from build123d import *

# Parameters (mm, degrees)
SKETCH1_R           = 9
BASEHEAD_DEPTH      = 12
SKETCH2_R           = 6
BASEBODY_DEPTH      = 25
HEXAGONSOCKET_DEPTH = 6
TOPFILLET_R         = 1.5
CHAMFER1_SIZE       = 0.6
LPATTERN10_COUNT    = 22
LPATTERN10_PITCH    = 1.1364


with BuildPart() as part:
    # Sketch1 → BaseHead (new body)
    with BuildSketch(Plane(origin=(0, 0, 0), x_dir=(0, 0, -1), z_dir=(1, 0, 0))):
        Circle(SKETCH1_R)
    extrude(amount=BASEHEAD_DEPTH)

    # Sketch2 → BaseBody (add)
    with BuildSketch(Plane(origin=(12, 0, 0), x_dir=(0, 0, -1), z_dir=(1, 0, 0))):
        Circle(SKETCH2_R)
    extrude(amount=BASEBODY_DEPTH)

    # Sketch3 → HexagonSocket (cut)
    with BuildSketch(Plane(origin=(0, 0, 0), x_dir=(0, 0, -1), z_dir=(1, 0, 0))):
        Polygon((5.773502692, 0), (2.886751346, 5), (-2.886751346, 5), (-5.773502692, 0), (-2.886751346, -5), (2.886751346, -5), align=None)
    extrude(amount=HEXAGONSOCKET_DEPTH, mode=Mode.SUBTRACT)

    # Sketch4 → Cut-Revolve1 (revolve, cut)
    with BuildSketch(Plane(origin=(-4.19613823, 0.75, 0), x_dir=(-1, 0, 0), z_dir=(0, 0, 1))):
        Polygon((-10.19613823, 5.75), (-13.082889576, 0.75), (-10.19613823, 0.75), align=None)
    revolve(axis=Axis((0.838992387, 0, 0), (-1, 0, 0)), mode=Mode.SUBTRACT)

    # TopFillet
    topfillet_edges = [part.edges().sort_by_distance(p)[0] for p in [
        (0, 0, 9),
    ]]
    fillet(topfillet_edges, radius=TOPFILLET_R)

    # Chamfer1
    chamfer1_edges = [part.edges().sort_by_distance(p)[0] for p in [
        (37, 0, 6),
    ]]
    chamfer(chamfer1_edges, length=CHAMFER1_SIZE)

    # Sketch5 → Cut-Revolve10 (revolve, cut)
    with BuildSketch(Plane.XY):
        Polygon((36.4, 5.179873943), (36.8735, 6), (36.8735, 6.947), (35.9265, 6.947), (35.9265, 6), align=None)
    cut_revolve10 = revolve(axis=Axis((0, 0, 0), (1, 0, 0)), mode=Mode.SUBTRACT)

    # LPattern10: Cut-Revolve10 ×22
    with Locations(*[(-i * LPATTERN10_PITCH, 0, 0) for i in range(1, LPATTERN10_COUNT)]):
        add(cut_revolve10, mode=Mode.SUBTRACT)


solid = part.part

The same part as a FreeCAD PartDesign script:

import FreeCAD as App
import Part
import Sketcher
from FreeCAD import Vector
Q = App.Units.Quantity


def edges_at(feature, points):
    """Names of the edges that pass closest to the given points."""
    edges = feature.Shape.Edges
    near = lambda p: min(range(len(edges)), key=lambda i: edges[i].distToShape(Part.Vertex(*p))[0])
    return sorted({f"Edge{near(p) + 1}" for p in points})

doc = App.newDocument("Part")
body = doc.addObject("PartDesign::Body", "Body")

# Sketch on YZ plane
sketch1 = doc.addObject("Sketcher::SketchObject", "Sketch")
body.addObject(sketch1)
sketch1.AttachmentSupport = (doc.YZ_Plane, [""])
sketch1.MapMode = "FlatFace"
sketch1.addGeometry(Part.Circle(Vector(0, 0, 0), Vector(0, 0, 1), 9), False)
sketch1.addConstraint([
    Sketcher.Constraint("Coincident", 0, 3, -1, 1),
    Sketcher.Constraint("Diameter", 0, Q("18 mm")),
])
pad1 = doc.addObject("PartDesign::Pad", "Pad")
body.addObject(pad1)
pad1.Profile = sketch1
pad1.Length = 12

# Sketch on YZ plane
sketch2 = doc.addObject("Sketcher::SketchObject", "Sketch001")
body.addObject(sketch2)
sketch2.AttachmentSupport = (doc.YZ_Plane, [""])
sketch2.MapMode = "FlatFace"
sketch2.AttachmentOffset = App.Placement(Vector(0, 0, 12), App.Rotation())
sketch2.addGeometry(Part.Circle(Vector(0, 0, 0), Vector(0, 0, 1), 6), False)
sketch2.addConstraint([
    Sketcher.Constraint("Coincident", 0, 3, -1, 1),
    Sketcher.Constraint("Diameter", 0, Q("12 mm")),
])
pad2 = doc.addObject("PartDesign::Pad", "Pad001")
body.addObject(pad2)
pad2.Profile = sketch2
pad2.Length = 25

# Sketch on YZ plane
sketch3 = doc.addObject("Sketcher::SketchObject", "Sketch002")
body.addObject(sketch3)
sketch3.AttachmentSupport = (doc.YZ_Plane, [""])
sketch3.MapMode = "FlatFace"
sketch3.addGeometry([
    Part.LineSegment(Vector(0, -6, 0), Vector(5, -3, 0)),  # 0
    Part.LineSegment(Vector(5, -3, 0), Vector(5, 3, 0)),  # 1
    Part.LineSegment(Vector(5, 3, 0), Vector(0, 6, 0)),  # 2
    Part.LineSegment(Vector(0, 6, 0), Vector(-5, 3, 0)),  # 3
    Part.LineSegment(Vector(-5, 3, 0), Vector(-5, -3, 0)),  # 4
    Part.LineSegment(Vector(-5, -3, 0), Vector(0, -6, 0)),  # 5
], False)
sketch3.addConstraint([
    Sketcher.Constraint("Coincident", 0, 2, 1, 1),
    Sketcher.Constraint("Coincident", 1, 2, 2, 1),
    Sketcher.Constraint("Coincident", 2, 2, 3, 1),
    Sketcher.Constraint("Coincident", 3, 2, 4, 1),
    Sketcher.Constraint("Coincident", 4, 2, 5, 1),
    Sketcher.Constraint("Coincident", 5, 2, 0, 1),
    Sketcher.Constraint("Vertical", 1),
    Sketcher.Constraint("Vertical", 4),
    Sketcher.Constraint("Symmetric", 0, 2, 3, 2, -1, 1),
    Sketcher.Constraint("Symmetric", 2, 2, 5, 2, -1, 1),
    Sketcher.Constraint("PointOnObject", 2, 2, -2),
    Sketcher.Constraint("Parallel", 2, 5),
    Sketcher.Constraint("Horizontal", 1, 2, 3, 2),
    Sketcher.Constraint("Angle", 0, Q("30 deg")),
    Sketcher.Constraint("DistanceX", -1, 1, 0, 2, Q("5 mm")),
    Sketcher.Constraint("DistanceY", 1, 1, 1, 2, Q("5.773503 mm")),
])
pocket1 = doc.addObject("PartDesign::Pocket", "Pocket")
body.addObject(pocket1)
pocket1.Profile = sketch3
pocket1.Length = 6
pocket1.Reversed = True

# Sketch on XY plane
sketch4 = doc.addObject("Sketcher::SketchObject", "Sketch003")
body.addObject(sketch4)
sketch4.AttachmentSupport = (doc.XY_Plane, [""])
sketch4.MapMode = "FlatFace"
sketch4.addGeometry([
    Part.LineSegment(Vector(6, -5, 0), Vector(8.9, 0, 0)),
    Part.LineSegment(Vector(8.9, 0, 0), Vector(6, 0, 0)),
    Part.LineSegment(Vector(6, 0, 0), Vector(6, -5, 0)),
], False)
sketch4.addConstraint([
    Sketcher.Constraint("Coincident", 0, 2, 1, 1),
    Sketcher.Constraint("Coincident", 1, 2, 2, 1),
    Sketcher.Constraint("Coincident", 2, 2, 0, 1),
    Sketcher.Constraint("Horizontal", 1),
    Sketcher.Constraint("Vertical", 2),
    Sketcher.Constraint("PointOnObject", 0, 2, -1),
    Sketcher.Constraint("DistanceY", 2, 2, 2, 1, Q("5 mm")),
    Sketcher.Constraint("Angle", 0, Q("60 deg")),
    Sketcher.Constraint("DistanceX", -1, 1, 1, 2, Q("6 mm")),
])
groove = doc.addObject("PartDesign::Groove", "Groove")
body.addObject(groove)
groove.Profile = sketch4
groove.ReferenceAxis = (sketch4, ["H_Axis"])
groove.Angle = 360
doc.recompute()

fillet = doc.addObject("PartDesign::Fillet", "Fillet")
body.addObject(fillet)
fillet.Base = (groove, edges_at(groove, [(0, 0, 9)]))
fillet.Radius = 1.5
doc.recompute()

chamfer = doc.addObject("PartDesign::Chamfer", "Chamfer")
body.addObject(chamfer)
chamfer.Base = (fillet, edges_at(fillet, [(37, 0, 6)]))
chamfer.Size = 0.6

# Sketch on XY plane
sketch5 = doc.addObject("Sketcher::SketchObject", "Sketch004")
body.addObject(sketch5)
sketch5.AttachmentSupport = (doc.XY_Plane, [""])
sketch5.MapMode = "FlatFace"
sketch5.addGeometry([
    Part.LineSegment(Vector(36.4, 5.2, 0), Vector(36.9, 6, 0)),  # 0
    Part.LineSegment(Vector(36.9, 6, 0), Vector(36.9, 6.9, 0)),  # 1
    Part.LineSegment(Vector(36.9, 6.9, 0), Vector(35.9, 6.9, 0)),  # 2
    Part.LineSegment(Vector(35.9, 6.9, 0), Vector(35.9, 6, 0)),  # 3
    Part.LineSegment(Vector(35.9, 6, 0), Vector(36.4, 5.2, 0)),  # 4
], False)
sketch5.addConstraint([
    Sketcher.Constraint("Coincident", 0, 2, 1, 1),
    Sketcher.Constraint("Coincident", 1, 2, 2, 1),
    Sketcher.Constraint("Coincident", 2, 2, 3, 1),
    Sketcher.Constraint("Coincident", 3, 2, 4, 1),
    Sketcher.Constraint("Coincident", 4, 2, 0, 1),
    Sketcher.Constraint("Vertical", 1),
    Sketcher.Constraint("Horizontal", 2),
    Sketcher.Constraint("Vertical", 3),
    Sketcher.Constraint("Horizontal", 0, 2, 3, 2),
    Sketcher.Constraint("Equal", 2, 1),
    Sketcher.Constraint("Equal", 0, 4),
    Sketcher.Constraint("Angle", 0, Q("60 deg")),
    Sketcher.Constraint("DistanceY", -1, 1, 0, 2, Q("6 mm")),
    Sketcher.Constraint("DistanceX", -1, 1, 4, 2, Q("36.4 mm")),
    Sketcher.Constraint("DistanceX", 2, 2, 2, 1, Q("0.947 mm")),
])
groove2 = doc.addObject("PartDesign::Groove", "Groove001")
body.addObject(groove2)
groove2.Profile = sketch5
groove2.ReferenceAxis = (sketch5, ["H_Axis"])
groove2.Angle = 360
doc.recompute()

linearpattern = doc.addObject("PartDesign::LinearPattern", "LinearPattern")
body.addObject(linearpattern)
linearpattern.Originals = [groove2]
linearpattern.Direction = (doc.X_Axis, [""])
linearpattern.Mode = "offset"
linearpattern.Offset = 1.1364
linearpattern.Occurrences = 22
linearpattern.Reversed = True
body.Tip = linearpattern

doc.recompute()
